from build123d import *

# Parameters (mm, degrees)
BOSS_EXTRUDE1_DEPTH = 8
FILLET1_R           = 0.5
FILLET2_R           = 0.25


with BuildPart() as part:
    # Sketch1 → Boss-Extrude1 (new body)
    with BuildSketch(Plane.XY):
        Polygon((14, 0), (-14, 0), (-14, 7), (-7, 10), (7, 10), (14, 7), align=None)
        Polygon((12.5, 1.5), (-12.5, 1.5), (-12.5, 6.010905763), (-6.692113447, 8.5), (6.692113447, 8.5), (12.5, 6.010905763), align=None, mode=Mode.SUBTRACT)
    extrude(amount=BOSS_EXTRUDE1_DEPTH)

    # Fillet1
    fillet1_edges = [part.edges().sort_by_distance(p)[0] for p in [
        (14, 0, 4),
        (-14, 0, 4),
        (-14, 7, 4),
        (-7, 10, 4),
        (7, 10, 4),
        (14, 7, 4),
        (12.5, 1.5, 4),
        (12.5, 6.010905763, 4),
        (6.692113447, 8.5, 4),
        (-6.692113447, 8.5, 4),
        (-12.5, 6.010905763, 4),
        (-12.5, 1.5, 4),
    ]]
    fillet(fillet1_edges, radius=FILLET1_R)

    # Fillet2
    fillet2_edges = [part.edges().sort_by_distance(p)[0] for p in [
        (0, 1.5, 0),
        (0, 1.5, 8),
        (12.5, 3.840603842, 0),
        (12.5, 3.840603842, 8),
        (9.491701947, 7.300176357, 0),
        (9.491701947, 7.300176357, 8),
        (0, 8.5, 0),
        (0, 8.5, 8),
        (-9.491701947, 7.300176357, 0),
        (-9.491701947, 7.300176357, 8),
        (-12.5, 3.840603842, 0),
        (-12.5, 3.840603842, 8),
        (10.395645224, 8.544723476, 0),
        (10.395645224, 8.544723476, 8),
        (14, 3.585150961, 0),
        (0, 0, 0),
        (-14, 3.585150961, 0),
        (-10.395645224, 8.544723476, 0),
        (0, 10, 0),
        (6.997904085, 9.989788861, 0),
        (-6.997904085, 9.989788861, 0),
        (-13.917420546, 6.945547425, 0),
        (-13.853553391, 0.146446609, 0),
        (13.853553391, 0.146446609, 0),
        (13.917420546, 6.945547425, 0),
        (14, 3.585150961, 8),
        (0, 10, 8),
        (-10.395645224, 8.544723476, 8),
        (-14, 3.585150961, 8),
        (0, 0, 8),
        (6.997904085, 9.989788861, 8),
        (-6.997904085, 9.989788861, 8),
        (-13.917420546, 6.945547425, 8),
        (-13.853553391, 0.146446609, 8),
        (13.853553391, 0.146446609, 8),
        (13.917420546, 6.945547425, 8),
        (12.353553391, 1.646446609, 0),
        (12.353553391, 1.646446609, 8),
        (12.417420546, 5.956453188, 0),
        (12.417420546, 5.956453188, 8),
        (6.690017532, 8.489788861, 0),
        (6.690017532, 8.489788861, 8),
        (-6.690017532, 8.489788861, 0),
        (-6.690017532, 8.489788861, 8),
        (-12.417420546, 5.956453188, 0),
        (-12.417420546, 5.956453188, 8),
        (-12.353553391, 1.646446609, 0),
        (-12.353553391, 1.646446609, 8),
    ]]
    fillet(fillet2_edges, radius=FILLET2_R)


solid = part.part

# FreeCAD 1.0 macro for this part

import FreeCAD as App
import Part
import Sketcher

V = App.Vector
Q = App.Units.Quantity


def edges_at(feature, points):
    """Names of the edges that pass closest to the given points."""
    edges = feature.Shape.Edges
    near = lambda p: min(range(len(edges)), key=lambda i: edges[i].distToShape(Part.Vertex(*p))[0])
    return sorted({f"Edge{near(p) + 1}" for p in points})

doc = App.newDocument("Part")
body = doc.addObject("PartDesign::Body", "Body")

# Sketch on XY plane
sketch1 = doc.addObject("Sketcher::SketchObject", "Sketch")
body.addObject(sketch1)
sketch1.AttachmentSupport = (doc.XY_Plane, [""])
sketch1.MapMode = "FlatFace"
sketch1.addGeometry(Part.LineSegment(V(-14, 0, 0), V(14, 0, 0)), False)
sketch1.addGeometry(Part.LineSegment(V(14, 0, 0), V(14, 7, 0)), False)
sketch1.addGeometry(Part.LineSegment(V(14, 7, 0), V(7, 10, 0)), False)
sketch1.addGeometry(Part.LineSegment(V(7, 10, 0), V(-7, 10, 0)), False)
sketch1.addGeometry(Part.LineSegment(V(-7, 10, 0), V(-14, 7, 0)), False)
sketch1.addGeometry(Part.LineSegment(V(-14, 7, 0), V(-14, 0, 0)), False)
sketch1.addGeometry(Part.LineSegment(V(12.5, 1.5, 0), V(-12.5, 1.5, 0)), False)
sketch1.addGeometry(Part.LineSegment(V(-12.5, 1.5, 0), V(-12.5, 6, 0)), False)
sketch1.addGeometry(Part.LineSegment(V(-12.5, 6, 0), V(-6.7, 8.5, 0)), False)
sketch1.addGeometry(Part.LineSegment(V(-6.7, 8.5, 0), V(6.7, 8.5, 0)), False)
sketch1.addGeometry(Part.LineSegment(V(6.7, 8.5, 0), V(12.5, 6, 0)), False)
sketch1.addGeometry(Part.LineSegment(V(12.5, 6, 0), V(12.5, 1.5, 0)), False)
sketch1.addConstraint(Sketcher.Constraint("Coincident", 0, 2, 1, 1))
sketch1.addConstraint(Sketcher.Constraint("Coincident", 1, 2, 2, 1))
sketch1.addConstraint(Sketcher.Constraint("Coincident", 2, 2, 3, 1))
sketch1.addConstraint(Sketcher.Constraint("Coincident", 3, 2, 4, 1))
sketch1.addConstraint(Sketcher.Constraint("Coincident", 4, 2, 5, 1))
sketch1.addConstraint(Sketcher.Constraint("Coincident", 5, 2, 0, 1))
sketch1.addConstraint(Sketcher.Constraint("Coincident", 6, 2, 7, 1))
sketch1.addConstraint(Sketcher.Constraint("Coincident", 7, 2, 8, 1))
sketch1.addConstraint(Sketcher.Constraint("Coincident", 8, 2, 9, 1))
sketch1.addConstraint(Sketcher.Constraint("Coincident", 9, 2, 10, 1))
sketch1.addConstraint(Sketcher.Constraint("Coincident", 10, 2, 11, 1))
sketch1.addConstraint(Sketcher.Constraint("Coincident", 11, 2, 6, 1))
sketch1.addConstraint(Sketcher.Constraint("Horizontal", 0))
sketch1.addConstraint(Sketcher.Constraint("Vertical", 1))
sketch1.addConstraint(Sketcher.Constraint("Horizontal", 3))
sketch1.addConstraint(Sketcher.Constraint("Vertical", 5))
sketch1.addConstraint(Sketcher.Constraint("Horizontal", 6))
sketch1.addConstraint(Sketcher.Constraint("Vertical", 7))
sketch1.addConstraint(Sketcher.Constraint("Horizontal", 9))
sketch1.addConstraint(Sketcher.Constraint("Vertical", 11))
sketch1.addConstraint(Sketcher.Constraint("Symmetric", 0, 2, 5, 2, -1, 1))
sketch1.addConstraint(Sketcher.Constraint("Symmetric", 7, 2, 10, 2, -2))
sketch1.addConstraint(Sketcher.Constraint("Parallel", 4, 8))
sketch1.addConstraint(Sketcher.Constraint("Parallel", 2, 10))
sketch1.addConstraint(Sketcher.Constraint("Horizontal", 1, 2, 4, 2))
sketch1.addConstraint(Sketcher.Constraint("Equal", 2, 4))
sketch1.addConstraint(Sketcher.Constraint("DistanceX", 0, 1, 0, 2, Q("28 mm")))
sketch1.addConstraint(Sketcher.Constraint("DistanceX", 3, 2, 3, 1, Q("14 mm")))
sketch1.addConstraint(Sketcher.Constraint("DistanceX", 6, 2, 6, 1, Q("25 mm")))
sketch1.addConstraint(Sketcher.Constraint("DistanceY", 1, 1, 1, 2, Q("7 mm")))
sketch1.addConstraint(Sketcher.Constraint("DistanceY", -1, 1, 2, 2, Q("10 mm")))
sketch1.addConstraint(Sketcher.Constraint("DistanceY", 6, 2, 8, 2, Q("7 mm")))
sketch1.addConstraint(Sketcher.Constraint("DistanceY", -1, 1, 6, 2, Q("1.5 mm")))
sketch1.addConstraint(Sketcher.Constraint("DistanceX", 9, 1, 9, 2, Q("13.384227 mm")))
pad1 = doc.addObject("PartDesign::Pad", "Pad")
body.addObject(pad1)
pad1.Profile = sketch1
pad1.Length = 8
doc.recompute()

fillet = doc.addObject("PartDesign::Fillet", "Fillet")
body.addObject(fillet)
fillet.Base = (pad1, edges_at(pad1, [
    (14, 0, 4),
    (-14, 0, 4),
    (-14, 7, 4),
    (-7, 10, 4),
    (7, 10, 4),
    (14, 7, 4),
    (12.5, 1.5, 4),
    (12.5, 6.011, 4),
    (6.692, 8.5, 4),
    (-6.692, 8.5, 4),
    (-12.5, 6.011, 4),
    (-12.5, 1.5, 4),
]))
fillet.Radius = 0.5
doc.recompute()

fillet2 = doc.addObject("PartDesign::Fillet", "Fillet001")
body.addObject(fillet2)
fillet2.Base = (fillet, edges_at(fillet, [
    (0, 1.5, 0),
    (0, 1.5, 8),
    (12.5, 3.841, 0),
    (12.5, 3.841, 8),
    (9.492, 7.3, 0),
    (9.492, 7.3, 8),
    (0, 8.5, 0),
    (0, 8.5, 8),
    (-9.492, 7.3, 0),
    (-9.492, 7.3, 8),
    (-12.5, 3.841, 0),
    (-12.5, 3.841, 8),
    (10.396, 8.545, 0),
    (10.396, 8.545, 8),
    (14, 3.585, 0),
    (0, 0, 0),
    (-14, 3.585, 0),
    (-10.396, 8.545, 0),
    (0, 10, 0),
    (6.998, 9.99, 0),
    (-6.998, 9.99, 0),
    (-13.917, 6.946, 0),
    (-13.854, 0.146, 0),
    (13.854, 0.146, 0),
    (13.917, 6.946, 0),
    (14, 3.585, 8),
    (0, 10, 8),
    (-10.396, 8.545, 8),
    (-14, 3.585, 8),
    (0, 0, 8),
    (6.998, 9.99, 8),
    (-6.998, 9.99, 8),
    (-13.917, 6.946, 8),
    (-13.854, 0.146, 8),
    (13.854, 0.146, 8),
    (13.917, 6.946, 8),
    (12.354, 1.646, 0),
    (12.354, 1.646, 8),
    (12.417, 5.956, 0),
    (12.417, 5.956, 8),
    (6.69, 8.49, 0),
    (6.69, 8.49, 8),
    (-6.69, 8.49, 0),
    (-6.69, 8.49, 8),
    (-12.417, 5.956, 0),
    (-12.417, 5.956, 8),
    (-12.354, 1.646, 0),
    (-12.354, 1.646, 8),
]))
fillet2.Radius = 0.25

doc.recompute()
